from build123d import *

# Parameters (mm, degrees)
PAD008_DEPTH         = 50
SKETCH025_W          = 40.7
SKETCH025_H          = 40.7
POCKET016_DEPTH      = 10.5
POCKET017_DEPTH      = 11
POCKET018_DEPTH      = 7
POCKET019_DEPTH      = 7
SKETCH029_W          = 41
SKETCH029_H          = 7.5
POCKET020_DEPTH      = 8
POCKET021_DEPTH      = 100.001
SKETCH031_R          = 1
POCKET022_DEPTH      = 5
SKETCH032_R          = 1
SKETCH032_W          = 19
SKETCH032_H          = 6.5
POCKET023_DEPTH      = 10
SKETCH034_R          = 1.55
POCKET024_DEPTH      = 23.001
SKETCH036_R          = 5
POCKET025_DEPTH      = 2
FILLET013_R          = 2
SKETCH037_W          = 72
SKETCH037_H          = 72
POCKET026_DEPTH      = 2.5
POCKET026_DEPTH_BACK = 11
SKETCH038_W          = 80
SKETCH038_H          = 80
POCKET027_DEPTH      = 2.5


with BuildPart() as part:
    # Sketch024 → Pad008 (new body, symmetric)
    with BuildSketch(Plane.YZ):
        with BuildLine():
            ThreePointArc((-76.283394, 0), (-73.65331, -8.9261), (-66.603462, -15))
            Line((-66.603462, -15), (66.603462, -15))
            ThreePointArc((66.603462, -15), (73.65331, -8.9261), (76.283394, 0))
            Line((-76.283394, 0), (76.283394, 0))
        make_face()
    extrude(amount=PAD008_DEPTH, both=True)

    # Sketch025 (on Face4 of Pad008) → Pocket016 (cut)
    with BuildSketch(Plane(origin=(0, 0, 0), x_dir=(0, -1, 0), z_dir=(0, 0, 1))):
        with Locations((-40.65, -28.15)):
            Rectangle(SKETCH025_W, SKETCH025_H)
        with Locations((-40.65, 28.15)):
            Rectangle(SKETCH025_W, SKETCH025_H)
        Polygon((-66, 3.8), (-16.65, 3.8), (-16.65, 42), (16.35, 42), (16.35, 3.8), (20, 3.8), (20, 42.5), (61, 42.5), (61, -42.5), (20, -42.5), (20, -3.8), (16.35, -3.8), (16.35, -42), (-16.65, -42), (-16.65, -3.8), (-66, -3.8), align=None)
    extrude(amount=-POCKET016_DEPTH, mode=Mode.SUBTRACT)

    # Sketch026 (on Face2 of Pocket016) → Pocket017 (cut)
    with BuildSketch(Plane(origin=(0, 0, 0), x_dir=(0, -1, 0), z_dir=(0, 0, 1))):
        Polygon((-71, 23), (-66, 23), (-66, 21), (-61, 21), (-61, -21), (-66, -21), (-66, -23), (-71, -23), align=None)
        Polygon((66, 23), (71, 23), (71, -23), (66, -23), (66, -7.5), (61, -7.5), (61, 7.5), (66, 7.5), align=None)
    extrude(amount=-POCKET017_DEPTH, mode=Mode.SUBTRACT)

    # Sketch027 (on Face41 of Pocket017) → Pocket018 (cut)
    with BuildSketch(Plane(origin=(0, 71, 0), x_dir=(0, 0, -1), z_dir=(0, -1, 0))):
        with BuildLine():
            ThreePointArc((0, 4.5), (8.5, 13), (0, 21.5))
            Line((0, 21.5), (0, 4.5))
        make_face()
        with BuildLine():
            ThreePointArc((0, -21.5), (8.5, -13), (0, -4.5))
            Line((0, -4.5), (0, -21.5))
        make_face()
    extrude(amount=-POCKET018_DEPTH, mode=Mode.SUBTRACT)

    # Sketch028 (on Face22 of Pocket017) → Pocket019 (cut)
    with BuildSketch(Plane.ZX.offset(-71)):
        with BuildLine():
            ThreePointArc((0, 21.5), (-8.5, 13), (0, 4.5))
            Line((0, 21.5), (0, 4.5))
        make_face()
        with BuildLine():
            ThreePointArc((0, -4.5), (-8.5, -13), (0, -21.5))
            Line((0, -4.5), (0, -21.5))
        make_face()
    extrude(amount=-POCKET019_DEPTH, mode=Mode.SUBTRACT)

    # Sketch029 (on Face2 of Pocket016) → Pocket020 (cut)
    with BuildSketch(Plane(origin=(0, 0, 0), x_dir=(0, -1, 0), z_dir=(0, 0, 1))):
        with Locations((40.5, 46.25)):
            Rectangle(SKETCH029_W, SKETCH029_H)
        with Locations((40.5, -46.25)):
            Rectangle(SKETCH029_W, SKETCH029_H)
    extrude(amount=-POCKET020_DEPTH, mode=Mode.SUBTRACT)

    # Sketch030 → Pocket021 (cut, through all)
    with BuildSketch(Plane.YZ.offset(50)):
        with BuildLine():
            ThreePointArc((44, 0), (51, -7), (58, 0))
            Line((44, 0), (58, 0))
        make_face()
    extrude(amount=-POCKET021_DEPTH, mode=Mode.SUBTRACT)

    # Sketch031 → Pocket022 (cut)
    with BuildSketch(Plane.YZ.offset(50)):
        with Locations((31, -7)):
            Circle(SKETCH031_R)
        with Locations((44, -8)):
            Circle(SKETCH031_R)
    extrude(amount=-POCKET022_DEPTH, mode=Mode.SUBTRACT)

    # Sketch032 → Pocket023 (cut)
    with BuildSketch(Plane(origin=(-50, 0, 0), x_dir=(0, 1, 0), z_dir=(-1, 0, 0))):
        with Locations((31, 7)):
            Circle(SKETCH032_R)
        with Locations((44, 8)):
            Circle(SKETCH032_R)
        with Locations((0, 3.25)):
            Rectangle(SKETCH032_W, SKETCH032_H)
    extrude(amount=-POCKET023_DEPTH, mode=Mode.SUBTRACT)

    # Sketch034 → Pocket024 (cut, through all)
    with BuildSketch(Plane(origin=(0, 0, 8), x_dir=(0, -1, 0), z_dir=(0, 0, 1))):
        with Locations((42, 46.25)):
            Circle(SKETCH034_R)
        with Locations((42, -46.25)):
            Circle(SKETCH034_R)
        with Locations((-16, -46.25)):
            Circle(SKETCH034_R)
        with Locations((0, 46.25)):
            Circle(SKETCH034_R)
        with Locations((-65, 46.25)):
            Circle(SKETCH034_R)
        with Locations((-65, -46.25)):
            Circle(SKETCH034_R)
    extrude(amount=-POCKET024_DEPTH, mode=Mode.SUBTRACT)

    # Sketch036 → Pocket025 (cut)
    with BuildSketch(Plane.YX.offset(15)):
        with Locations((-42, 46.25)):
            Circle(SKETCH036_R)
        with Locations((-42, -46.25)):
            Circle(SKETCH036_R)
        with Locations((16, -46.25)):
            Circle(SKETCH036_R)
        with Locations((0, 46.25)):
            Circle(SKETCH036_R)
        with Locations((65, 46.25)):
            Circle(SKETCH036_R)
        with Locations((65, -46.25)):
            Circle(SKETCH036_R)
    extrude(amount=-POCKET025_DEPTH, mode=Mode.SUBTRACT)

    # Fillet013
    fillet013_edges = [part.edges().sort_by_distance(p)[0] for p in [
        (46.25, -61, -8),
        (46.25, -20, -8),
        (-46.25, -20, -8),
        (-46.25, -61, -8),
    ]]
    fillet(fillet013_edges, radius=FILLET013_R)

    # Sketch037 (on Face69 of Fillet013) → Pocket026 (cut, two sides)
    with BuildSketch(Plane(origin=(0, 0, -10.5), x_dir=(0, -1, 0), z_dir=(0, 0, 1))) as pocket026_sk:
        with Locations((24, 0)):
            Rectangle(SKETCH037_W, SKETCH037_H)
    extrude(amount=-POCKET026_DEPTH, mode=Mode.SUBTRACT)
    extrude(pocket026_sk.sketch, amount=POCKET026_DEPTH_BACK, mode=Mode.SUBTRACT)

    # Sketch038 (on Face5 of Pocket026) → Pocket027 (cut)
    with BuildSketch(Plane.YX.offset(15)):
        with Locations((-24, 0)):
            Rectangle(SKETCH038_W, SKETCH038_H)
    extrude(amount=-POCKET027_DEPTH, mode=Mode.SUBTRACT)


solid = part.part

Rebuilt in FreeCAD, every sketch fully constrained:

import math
import FreeCAD as App
import Part
import Sketcher
from FreeCAD import Vector


def edges_at(feature, points):
    """Names of the edges that pass closest to the given points."""
    edges = feature.Shape.Edges
    near = lambda p: min(range(len(edges)), key=lambda i: edges[i].distToShape(Part.Vertex(*p))[0])
    return sorted({f"Edge{near(p) + 1}" for p in points})

doc = App.newDocument("Part")
body = doc.addObject("PartDesign::Body", "Body")

# Sketch on YZ plane
sketch1 = body.newObject("Sketcher::SketchObject", "Sketch")
sketch1.AttachmentSupport = (doc.getObject("YZ_Plane"), [""])
sketch1.MapMode = "FlatFace"
sketch1.addGeometry(Part.ArcOfCircle(Part.Circle(Vector(-60, 0, 0), Vector(0, 0, 1), 16), math.radians(-180), math.radians(-114)), False)
sketch1.addGeometry(Part.LineSegment(Vector(-67, -15, 0), Vector(67, -15, 0)), False)
sketch1.addGeometry(Part.ArcOfCircle(Part.Circle(Vector(60, 0, 0), Vector(0, 0, 1), 16), math.radians(-66), math.radians(0)), False)
sketch1.addGeometry(Part.LineSegment(Vector(76, 0, 0), Vector(-76, 0, 0)), False)
sketch1.addConstraint(Sketcher.Constraint("Coincident", 0, 2, 1, 1))
sketch1.addConstraint(Sketcher.Constraint("Coincident", 1, 2, 2, 1))
sketch1.addConstraint(Sketcher.Constraint("Coincident", 2, 2, 3, 1))
sketch1.addConstraint(Sketcher.Constraint("Coincident", 3, 2, 0, 1))
sketch1.addConstraint(Sketcher.Constraint("Horizontal", 1))
sketch1.addConstraint(Sketcher.Constraint("Horizontal", 3))
sketch1.addConstraint(Sketcher.Constraint("Equal", 0, 2))
sketch1.addConstraint(Sketcher.Constraint("Symmetric", 0, 3, 2, 3, -1, 1))
sketch1.addConstraint(Sketcher.Constraint("PointOnObject", 0, 3, -1))
sketch1.addConstraint(Sketcher.Constraint("PointOnObject", 2, 2, -1))
sketch1.addConstraint(Sketcher.Constraint("DistanceY", 0, 2, -1, 1, 15.0))
sketch1.addConstraint(Sketcher.Constraint("Radius", 0, 16.46195))
sketch1.addConstraint(Sketcher.Constraint("DistanceX", 3, 2, 3, 1, 152.566788))
pad1 = body.newObject("PartDesign::Pad", "Pad")
pad1.Profile = sketch1
pad1.Length = 100
pad1.Midplane = True

# Sketch on XY plane
sketch2 = body.newObject("Sketcher::SketchObject", "Sketch001")
sketch2.AttachmentSupport = (doc.getObject("XY_Plane"), [""])
sketch2.MapMode = "FlatFace"
sketch2.addGeometry(Part.LineSegment(Vector(-7.8, 61, 0), Vector(-48.5, 61, 0)), False)
sketch2.addGeometry(Part.LineSegment(Vector(-48.5, 61, 0), Vector(-48.5, 20.3, 0)), False)
sketch2.addGeometry(Part.LineSegment(Vector(-48.5, 20.3, 0), Vector(-7.8, 20.3, 0)), False)
sketch2.addGeometry(Part.LineSegment(Vector(-7.8, 20.3, 0), Vector(-7.8, 61, 0)), False)
sketch2.addGeometry(Part.LineSegment(Vector(48.5, 61, 0), Vector(7.8, 61, 0)), False)
sketch2.addGeometry(Part.LineSegment(Vector(7.8, 61, 0), Vector(7.8, 20.3, 0)), False)
sketch2.addGeometry(Part.LineSegment(Vector(7.8, 20.3, 0), Vector(48.5, 20.3, 0)), False)
sketch2.addGeometry(Part.LineSegment(Vector(48.5, 20.3, 0), Vector(48.5, 61, 0)), False)
sketch2.addGeometry(Part.LineSegment(Vector(3.8, 16.6, 0), Vector(3.8, 66, 0)), False)
sketch2.addGeometry(Part.LineSegment(Vector(3.8, 66, 0), Vector(-3.8, 66, 0)), False)
sketch2.addGeometry(Part.LineSegment(Vector(-3.8, 66, 0), Vector(-3.8, 16.6, 0)), False)
sketch2.addGeometry(Part.LineSegment(Vector(-3.8, 16.6, 0), Vector(-42, 16.6, 0)), False)
sketch2.addGeometry(Part.LineSegment(Vector(-42, 16.6, 0), Vector(-42, -16.4, 0)), False)
sketch2.addGeometry(Part.LineSegment(Vector(-42, -16.4, 0), Vector(-3.8, -16.4, 0)), False)
sketch2.addGeometry(Part.LineSegment(Vector(-3.8, -16.4, 0), Vector(-3.8, -20, 0)), False)
sketch2.addGeometry(Part.LineSegment(Vector(-3.8, -20, 0), Vector(-42.5, -20, 0)), False)
sketch2.addGeometry(Part.LineSegment(Vector(-42.5, -20, 0), Vector(-42.5, -61, 0)), False)
sketch2.addGeometry(Part.LineSegment(Vector(-42.5, -61, 0), Vector(42.5, -61, 0)), False)
sketch2.addGeometry(Part.LineSegment(Vector(42.5, -61, 0), Vector(42.5, -20, 0)), False)
sketch2.addGeometry(Part.LineSegment(Vector(42.5, -20, 0), Vector(3.8, -20, 0)), False)
sketch2.addGeometry(Part.LineSegment(Vector(3.8, -20, 0), Vector(3.8, -16.4, 0)), False)
sketch2.addGeometry(Part.LineSegment(Vector(3.8, -16.4, 0), Vector(42, -16.4, 0)), False)
sketch2.addGeometry(Part.LineSegment(Vector(42, -16.4, 0), Vector(42, 16.6, 0)), False)
sketch2.addGeometry(Part.LineSegment(Vector(42, 16.6, 0), Vector(3.8, 16.6, 0)), False)
sketch2.addConstraint(Sketcher.Constraint("Coincident", 0, 2, 1, 1))
sketch2.addConstraint(Sketcher.Constraint("Coincident", 1, 2, 2, 1))
sketch2.addConstraint(Sketcher.Constraint("Coincident", 2, 2, 3, 1))
sketch2.addConstraint(Sketcher.Constraint("Coincident", 3, 2, 0, 1))
sketch2.addConstraint(Sketcher.Constraint("Coincident", 4, 2, 5, 1))
sketch2.addConstraint(Sketcher.Constraint("Coincident", 5, 2, 6, 1))
sketch2.addConstraint(Sketcher.Constraint("Coincident", 6, 2, 7, 1))
sketch2.addConstraint(Sketcher.Constraint("Coincident", 7, 2, 4, 1))
sketch2.addConstraint(Sketcher.Constraint("Coincident", 8, 2, 9, 1))
sketch2.addConstraint(Sketcher.Constraint("Coincident", 9, 2, 10, 1))
sketch2.addConstraint(Sketcher.Constraint("Coincident", 10, 2, 11, 1))
sketch2.addConstraint(Sketcher.Constraint("Coincident", 11, 2, 12, 1))
sketch2.addConstraint(Sketcher.Constraint("Coincident", 12, 2, 13, 1))
sketch2.addConstraint(Sketcher.Constraint("Coincident", 13, 2, 14, 1))
sketch2.addConstraint(Sketcher.Constraint("Coincident", 14, 2, 15, 1))
sketch2.addConstraint(Sketcher.Constraint("Coincident", 15, 2, 16, 1))
sketch2.addConstraint(Sketcher.Constraint("Coincident", 16, 2, 17, 1))
sketch2.addConstraint(Sketcher.Constraint("Coincident", 17, 2, 18, 1))
sketch2.addConstraint(Sketcher.Constraint("Coincident", 18, 2, 19, 1))
sketch2.addConstraint(Sketcher.Constraint("Coincident", 19, 2, 20, 1))
sketch2.addConstraint(Sketcher.Constraint("Coincident", 20, 2, 21, 1))
sketch2.addConstraint(Sketcher.Constraint("Coincident", 21, 2, 22, 1))
sketch2.addConstraint(Sketcher.Constraint("Coincident", 22, 2, 23, 1))
sketch2.addConstraint(Sketcher.Constraint("Coincident", 23, 2, 8, 1))
sketch2.addConstraint(Sketcher.Constraint("Horizontal", 0))
sketch2.addConstraint(Sketcher.Constraint("Vertical", 1))
sketch2.addConstraint(Sketcher.Constraint("Horizontal", 2))
sketch2.addConstraint(Sketcher.Constraint("Vertical", 3))
sketch2.addConstraint(Sketcher.Constraint("Horizontal", 4))
sketch2.addConstraint(Sketcher.Constraint("Vertical", 5))
sketch2.addConstraint(Sketcher.Constraint("Horizontal", 6))
sketch2.addConstraint(Sketcher.Constraint("Vertical", 7))
sketch2.addConstraint(Sketcher.Constraint("Vertical", 8))
sketch2.addConstraint(Sketcher.Constraint("Horizontal", 9))
sketch2.addConstraint(Sketcher.Constraint("Vertical", 10))
sketch2.addConstraint(Sketcher.Constraint("Horizontal", 11))
sketch2.addConstraint(Sketcher.Constraint("Vertical", 12))
sketch2.addConstraint(Sketcher.Constraint("Horizontal", 13))
sketch2.addConstraint(Sketcher.Constraint("Vertical", 14))
sketch2.addConstraint(Sketcher.Constraint("Horizontal", 15))
sketch2.addConstraint(Sketcher.Constraint("Vertical", 16))
sketch2.addConstraint(Sketcher.Constraint("Horizontal", 17))
sketch2.addConstraint(Sketcher.Constraint("Vertical", 18))
sketch2.addConstraint(Sketcher.Constraint("Horizontal", 19))
sketch2.addConstraint(Sketcher.Constraint("Vertical", 20))
sketch2.addConstraint(Sketcher.Constraint("Horizontal", 21))
sketch2.addConstraint(Sketcher.Constraint("Vertical", 22))
sketch2.addConstraint(Sketcher.Constraint("Horizontal", 23))
sketch2.addConstraint(Sketcher.Constraint("Symmetric", 3, 2, 4, 2, -2))
sketch2.addConstraint(Sketcher.Constraint("Symmetric", 1, 2, 6, 2, -2))
sketch2.addConstraint(Sketcher.Constraint("Symmetric", 15, 2, 18, 2, -2))
sketch2.addConstraint(Sketcher.Constraint("Symmetric", 13, 2, 20, 2, -2))
sketch2.addConstraint(Sketcher.Constraint("Symmetric", 11, 2, 22, 2, -2))
sketch2.addConstraint(Sketcher.Constraint("Vertical", 10, 2, 13, 2))
sketch2.addConstraint(Sketcher.Constraint("Vertical", 8, 2, 19, 2))
sketch2.addConstraint(Sketcher.Constraint("Equal", 6, 1))
sketch2.addConstraint(Sketcher.Constraint("DistanceX", 17, 1, 17, 2, 85.0))
sketch2.addConstraint(Sketcher.Constraint("DistanceY", 12, 2, 12, 1, 33.0))
sketch2.addConstraint(Sketcher.Constraint("DistanceY", 16, 2, 16, 1, 41.0))
sketch2.addConstraint(Sketcher.Constraint("DistanceX", 0, 2, 0, 1, 40.7))
sketch2.addConstraint(Sketcher.Constraint("DistanceX", 9, 2, 9, 1, 7.6))
sketch2.addConstraint(Sketcher.Constraint("DistanceX", 11, 2, 11, 1, 38.2))
sketch2.addConstraint(Sketcher.Constraint("DistanceY", -1, 1, 0, 2, 61.0))
sketch2.addConstraint(Sketcher.Constraint("DistanceY", -1, 1, 8, 2, 66.0))
sketch2.addConstraint(Sketcher.Constraint("DistanceY", 14, 2, -1, 1, 20.0))
sketch2.addConstraint(Sketcher.Constraint("DistanceX", 1, 2, 6, 2, 97.0))
sketch2.addConstraint(Sketcher.Constraint("DistanceY", 8, 1, 8, 2, 49.35))
pocket1 = body.newObject("PartDesign::Pocket", "Pocket")
pocket1.Profile = sketch2
pocket1.Length = 10.5

# Sketch on XY plane
sketch3 = body.newObject("Sketcher::SketchObject", "Sketch002")
sketch3.AttachmentSupport = (doc.getObject("XY_Plane"), [""])
sketch3.MapMode = "FlatFace"
sketch3.addGeometry(Part.LineSegment(Vector(23, 66, 0), Vector(23, 71, 0)), False)
sketch3.addGeometry(Part.LineSegment(Vector(23, 71, 0), Vector(-23, 71, 0)), False)
sketch3.addGeometry(Part.LineSegment(Vector(-23, 71, 0), Vector(-23, 66, 0)), False)
sketch3.addGeometry(Part.LineSegment(Vector(-23, 66, 0), Vector(-21, 66, 0)), False)
sketch3.addGeometry(Part.LineSegment(Vector(-21, 66, 0), Vector(-21, 61, 0)), False)
sketch3.addGeometry(Part.LineSegment(Vector(-21, 61, 0), Vector(21, 61, 0)), False)
sketch3.addGeometry(Part.LineSegment(Vector(21, 61, 0), Vector(21, 66, 0)), False)
sketch3.addGeometry(Part.LineSegment(Vector(21, 66, 0), Vector(23, 66, 0)), False)
sketch3.addGeometry(Part.LineSegment(Vector(23, -71, 0), Vector(23, -66, 0)), False)
sketch3.addGeometry(Part.LineSegment(Vector(23, -66, 0), Vector(7.5, -66, 0)), False)
sketch3.addGeometry(Part.LineSegment(Vector(7.5, -66, 0), Vector(7.5, -61, 0)), False)
sketch3.addGeometry(Part.LineSegment(Vector(7.5, -61, 0), Vector(-7.5, -61, 0)), False)
sketch3.addGeometry(Part.LineSegment(Vector(-7.5, -61, 0), Vector(-7.5, -66, 0)), False)
sketch3.addGeometry(Part.LineSegment(Vector(-7.5, -66, 0), Vector(-23, -66, 0)), False)
sketch3.addGeometry(Part.LineSegment(Vector(-23, -66, 0), Vector(-23, -71, 0)), False)
sketch3.addGeometry(Part.LineSegment(Vector(-23, -71, 0), Vector(23, -71, 0)), False)
sketch3.addConstraint(Sketcher.Constraint("Coincident", 0, 2, 1, 1))
sketch3.addConstraint(Sketcher.Constraint("Coincident", 1, 2, 2, 1))
sketch3.addConstraint(Sketcher.Constraint("Coincident", 2, 2, 3, 1))
sketch3.addConstraint(Sketcher.Constraint("Coincident", 3, 2, 4, 1))
sketch3.addConstraint(Sketcher.Constraint("Coincident", 4, 2, 5, 1))
sketch3.addConstraint(Sketcher.Constraint("Coincident", 5, 2, 6, 1))
sketch3.addConstraint(Sketcher.Constraint("Coincident", 6, 2, 7, 1))
sketch3.addConstraint(Sketcher.Constraint("Coincident", 7, 2, 0, 1))
sketch3.addConstraint(Sketcher.Constraint("Coincident", 8, 2, 9, 1))
sketch3.addConstraint(Sketcher.Constraint("Coincident", 9, 2, 10, 1))
sketch3.addConstraint(Sketcher.Constraint("Coincident", 10, 2, 11, 1))
sketch3.addConstraint(Sketcher.Constraint("Coincident", 11, 2, 12, 1))
sketch3.addConstraint(Sketcher.Constraint("Coincident", 12, 2, 13, 1))
sketch3.addConstraint(Sketcher.Constraint("Coincident", 13, 2, 14, 1))
sketch3.addConstraint(Sketcher.Constraint("Coincident", 14, 2, 15, 1))
sketch3.addConstraint(Sketcher.Constraint("Coincident", 15, 2, 8, 1))
sketch3.addConstraint(Sketcher.Constraint("Vertical", 0))
sketch3.addConstraint(Sketcher.Constraint("Horizontal", 1))
sketch3.addConstraint(Sketcher.Constraint("Vertical", 2))
sketch3.addConstraint(Sketcher.Constraint("Horizontal", 3))
sketch3.addConstraint(Sketcher.Constraint("Vertical", 4))
sketch3.addConstraint(Sketcher.Constraint("Horizontal", 5))
sketch3.addConstraint(Sketcher.Constraint("Vertical", 6))
sketch3.addConstraint(Sketcher.Constraint("Horizontal", 7))
sketch3.addConstraint(Sketcher.Constraint("Vertical", 8))
sketch3.addConstraint(Sketcher.Constraint("Horizontal", 9))
sketch3.addConstraint(Sketcher.Constraint("Vertical", 10))
sketch3.addConstraint(Sketcher.Constraint("Horizontal", 11))
sketch3.addConstraint(Sketcher.Constraint("Vertical", 12))
sketch3.addConstraint(Sketcher.Constraint("Horizontal", 13))
sketch3.addConstraint(Sketcher.Constraint("Vertical", 14))
sketch3.addConstraint(Sketcher.Constraint("Horizontal", 15))
sketch3.addConstraint(Sketcher.Constraint("Symmetric", 2, 2, 8, 2, -1, 1))
sketch3.addConstraint(Sketcher.Constraint("Symmetric", 7, 2, 13, 2, -1, 1))
sketch3.addConstraint(Sketcher.Constraint("Symmetric", 3, 2, 6, 2, -2))
sketch3.addConstraint(Sketcher.Constraint("Symmetric", 1, 2, 14, 2, -1))
sketch3.addConstraint(Sketcher.Constraint("Equal", 9, 13))
sketch3.addConstraint(Sketcher.Constraint("Equal", 2, 4))
sketch3.addConstraint(Sketcher.Constraint("Equal", 8, 10))
sketch3.addConstraint(Sketcher.Constraint("DistanceX", 1, 2, 1, 1, 46.0))
sketch3.addConstraint(Sketcher.Constraint("DistanceX", 3, 1, 3, 2, 2.0))
sketch3.addConstraint(Sketcher.Constraint("DistanceX", 11, 2, 11, 1, 15.0))
sketch3.addConstraint(Sketcher.Constraint("DistanceY", 0, 1, 0, 2, 5.0))
sketch3.addConstraint(Sketcher.Constraint("DistanceY", -1, 1, 0, 2, 71.0))
pocket2 = body.newObject("PartDesign::Pocket", "Pocket001")
pocket2.Profile = sketch3
pocket2.Length = 11

# Sketch on XZ plane
sketch4 = body.newObject("Sketcher::SketchObject", "Sketch003")
sketch4.AttachmentSupport = (doc.getObject("XZ_Plane"), [""])
sketch4.MapMode = "FlatFace"
sketch4.AttachmentOffset = App.Placement(Vector(0, 0, -71), App.Rotation())
sketch4.addGeometry(Part.ArcOfCircle(Part.Circle(Vector(13, 0, 0), Vector(0, 0, 1), 8), math.radians(180), math.radians(360)), False)
sketch4.addGeometry(Part.LineSegment(Vector(22, 0, 0), Vector(4, 0, 0)), False)
sketch4.addGeometry(Part.ArcOfCircle(Part.Circle(Vector(-13, 0, 0), Vector(0, 0, 1), 8), math.radians(180), math.radians(360)), False)
sketch4.addGeometry(Part.LineSegment(Vector(-4, 0, 0), Vector(-22, 0, 0)), False)
sketch4.addConstraint(Sketcher.Constraint("Coincident", 0, 1, 1, 2))
sketch4.addConstraint(Sketcher.Constraint("Coincident", 1, 1, 0, 2))
sketch4.addConstraint(Sketcher.Constraint("Coincident", 2, 1, 3, 2))
sketch4.addConstraint(Sketcher.Constraint("Coincident", 3, 1, 2, 2))
sketch4.addConstraint(Sketcher.Constraint("Horizontal", 1))
sketch4.addConstraint(Sketcher.Constraint("Horizontal", 3))
sketch4.addConstraint(Sketcher.Constraint("Equal", 0, 2))
sketch4.addConstraint(Sketcher.Constraint("Symmetric", 0, 3, 2, 3, -1, 1))
sketch4.addConstraint(Sketcher.Constraint("PointOnObject", 0, 3, -1))
sketch4.addConstraint(Sketcher.Constraint("PointOnObject", 0, 1, -1))
sketch4.addConstraint(Sketcher.Constraint("PointOnObject", 2, 1, -1))
sketch4.addConstraint(Sketcher.Constraint("Radius", 0, 8.5))
sketch4.addConstraint(Sketcher.Constraint("DistanceX", -1, 1, 0, 3, 13.0))
pocket3 = body.newObject("PartDesign::Pocket", "Pocket002")
pocket3.Profile = sketch4
pocket3.Length = 7

# Sketch on XZ plane
sketch5 = body.newObject("Sketcher::SketchObject", "Sketch004")
sketch5.AttachmentSupport = (doc.getObject("XZ_Plane"), [""])
sketch5.MapMode = "FlatFace"
sketch5.AttachmentOffset = App.Placement(Vector(0, 0, 71), App.Rotation())
sketch5.addGeometry(Part.ArcOfCircle(Part.Circle(Vector(13, 0, 0), Vector(0, 0, 1), 8), math.radians(180), math.radians(360)), False)
sketch5.addGeometry(Part.LineSegment(Vector(4, 0, 0), Vector(22, 0, 0)), False)
sketch5.addGeometry(Part.ArcOfCircle(Part.Circle(Vector(-13, 0, 0), Vector(0, 0, 1), 8), math.radians(180), math.radians(360)), False)
sketch5.addGeometry(Part.LineSegment(Vector(-22, 0, 0), Vector(-4, 0, 0)), False)
sketch5.addConstraint(Sketcher.Constraint("Coincident", 0, 1, 1, 1))
sketch5.addConstraint(Sketcher.Constraint("Coincident", 1, 2, 0, 2))
sketch5.addConstraint(Sketcher.Constraint("Coincident", 2, 1, 3, 1))
sketch5.addConstraint(Sketcher.Constraint("Coincident", 3, 2, 2, 2))
sketch5.addConstraint(Sketcher.Constraint("Horizontal", 1))
sketch5.addConstraint(Sketcher.Constraint("Horizontal", 3))
sketch5.addConstraint(Sketcher.Constraint("Equal", 0, 2))
sketch5.addConstraint(Sketcher.Constraint("Symmetric", 0, 3, 2, 3, -1, 1))
sketch5.addConstraint(Sketcher.Constraint("PointOnObject", 0, 3, -1))
sketch5.addConstraint(Sketcher.Constraint("PointOnObject", 0, 1, -1))
sketch5.addConstraint(Sketcher.Constraint("PointOnObject", 2, 1, -1))
sketch5.addConstraint(Sketcher.Constraint("Radius", 0, 8.5))
sketch5.addConstraint(Sketcher.Constraint("DistanceX", -1, 1, 0, 3, 13.0))
pocket4 = body.newObject("PartDesign::Pocket", "Pocket003")
pocket4.Profile = sketch5
pocket4.Length = 7
pocket4.Reversed = True

# Sketch on XY plane
sketch6 = body.newObject("Sketcher::SketchObject", "Sketch005")
sketch6.AttachmentSupport = (doc.getObject("XY_Plane"), [""])
sketch6.MapMode = "FlatFace"
sketch6.addGeometry(Part.LineSegment(Vector(50, -20, 0), Vector(42, -20, 0)), False)
sketch6.addGeometry(Part.LineSegment(Vector(42, -20, 0), Vector(42, -61, 0)), False)
sketch6.addGeometry(Part.LineSegment(Vector(42, -61, 0), Vector(50, -61, 0)), False)
sketch6.addGeometry(Part.LineSegment(Vector(50, -61, 0), Vector(50, -20, 0)), False)
sketch6.addGeometry(Part.LineSegment(Vector(-42, -20, 0), Vector(-50, -20, 0)), False)
sketch6.addGeometry(Part.LineSegment(Vector(-50, -20, 0), Vector(-50, -61, 0)), False)
sketch6.addGeometry(Part.LineSegment(Vector(-50, -61, 0), Vector(-42, -61, 0)), False)
sketch6.addGeometry(Part.LineSegment(Vector(-42, -61, 0), Vector(-42, -20, 0)), False)
sketch6.addConstraint(Sketcher.Constraint("Coincident", 0, 2, 1, 1))
sketch6.addConstraint(Sketcher.Constraint("Coincident", 1, 2, 2, 1))
sketch6.addConstraint(Sketcher.Constraint("Coincident", 2, 2, 3, 1))
sketch6.addConstraint(Sketcher.Constraint("Coincident", 3, 2, 0, 1))
sketch6.addConstraint(Sketcher.Constraint("Coincident", 4, 2, 5, 1))
sketch6.addConstraint(Sketcher.Constraint("Coincident", 5, 2, 6, 1))
sketch6.addConstraint(Sketcher.Constraint("Coincident", 6, 2, 7, 1))
sketch6.addConstraint(Sketcher.Constraint("Coincident", 7, 2, 4, 1))
sketch6.addConstraint(Sketcher.Constraint("Horizontal", 0))
sketch6.addConstraint(Sketcher.Constraint("Vertical", 1))
sketch6.addConstraint(Sketcher.Constraint("Horizontal", 2))
sketch6.addConstraint(Sketcher.Constraint("Vertical", 3))
sketch6.addConstraint(Sketcher.Constraint("Horizontal", 4))
sketch6.addConstraint(Sketcher.Constraint("Vertical", 5))
sketch6.addConstraint(Sketcher.Constraint("Horizontal", 6))
sketch6.addConstraint(Sketcher.Constraint("Vertical", 7))
sketch6.addConstraint(Sketcher.Constraint("Symmetric", 3, 2, 4, 2, -2))
sketch6.addConstraint(Sketcher.Constraint("Symmetric", 1, 2, 6, 2, -2))
sketch6.addConstraint(Sketcher.Constraint("DistanceY", 1, 2, 1, 1, 41.0))
sketch6.addConstraint(Sketcher.Constraint("DistanceX", 0, 2, 0, 1, 7.5))
sketch6.addConstraint(Sketcher.Constraint("DistanceY", 0, 2, -1, 1, 20.0))
sketch6.addConstraint(Sketcher.Constraint("DistanceX", -1, 1, 2, 2, 50.0))
pocket5 = body.newObject("PartDesign::Pocket", "Pocket004")
pocket5.Profile = sketch6
pocket5.Length = 8

# Sketch on YZ plane
sketch7 = body.newObject("Sketcher::SketchObject", "Sketch006")
sketch7.AttachmentSupport = (doc.getObject("YZ_Plane"), [""])
sketch7.MapMode = "FlatFace"
sketch7.AttachmentOffset = App.Placement(Vector(0, 0, 50), App.Rotation())
sketch7.addGeometry(Part.ArcOfCircle(Part.Circle(Vector(51, 0, 0), Vector(0, 0, 1), 7), math.radians(180), math.radians(360)), False)
sketch7.addGeometry(Part.LineSegment(Vector(58, 0, 0), Vector(44, 0, 0)), False)
sketch7.addConstraint(Sketcher.Constraint("Coincident", 0, 1, 1, 2))
sketch7.addConstraint(Sketcher.Constraint("Coincident", 1, 1, 0, 2))
sketch7.addConstraint(Sketcher.Constraint("Horizontal", 1))
sketch7.addConstraint(Sketcher.Constraint("PointOnObject", 0, 3, -1))
sketch7.addConstraint(Sketcher.Constraint("PointOnObject", 0, 1, -1))
sketch7.addConstraint(Sketcher.Constraint("Radius", 0, 7.0))
sketch7.addConstraint(Sketcher.Constraint("DistanceX", -1, 1, 0, 3, 51.0))
pocket6 = body.newObject("PartDesign::Pocket", "Pocket005")
pocket6.Profile = sketch7
pocket6.Type = "ThroughAll"

# Sketch on YZ plane
sketch8 = body.newObject("Sketcher::SketchObject", "Sketch007")
sketch8.AttachmentSupport = (doc.getObject("YZ_Plane"), [""])
sketch8.MapMode = "FlatFace"
sketch8.AttachmentOffset = App.Placement(Vector(0, 0, 50), App.Rotation())
sketch8.addGeometry(Part.Circle(Vector(31, -7, 0), Vector(0, 0, 1), 1), False)
sketch8.addGeometry(Part.Circle(Vector(44, -8, 0), Vector(0, 0, 1), 1), False)
sketch8.addConstraint(Sketcher.Constraint("Equal", 0, 1))
sketch8.addConstraint(Sketcher.Constraint("Diameter", 0, 2.0))
sketch8.addConstraint(Sketcher.Constraint("DistanceX", -1, 1, 0, 3, 31.0))
sketch8.addConstraint(Sketcher.Constraint("DistanceY", 0, 3, -1, 1, 7.0))
sketch8.addConstraint(Sketcher.Constraint("DistanceX", -1, 1, 1, 3, 44.0))
sketch8.addConstraint(Sketcher.Constraint("DistanceY", 1, 3, -1, 1, 8.0))
pocket7 = body.newObject("PartDesign::Pocket", "Pocket006")
pocket7.Profile = sketch8
pocket7.Length = 5

# Sketch on YZ plane
sketch9 = body.newObject("Sketcher::SketchObject", "Sketch008")
sketch9.AttachmentSupport = (doc.getObject("YZ_Plane"), [""])
sketch9.MapMode = "FlatFace"
sketch9.AttachmentOffset = App.Placement(Vector(0, 0, -50), App.Rotation())
sketch9.addGeometry(Part.Circle(Vector(31, -7, 0), Vector(0, 0, 1), 1), False)
sketch9.addGeometry(Part.Circle(Vector(44, -8, 0), Vector(0, 0, 1), 1), False)
sketch9.addGeometry(Part.LineSegment(Vector(-9.5, -6.5, 0), Vector(-9.5, 0, 0)), False)
sketch9.addGeometry(Part.LineSegment(Vector(-9.5, 0, 0), Vector(9.5, 0, 0)), False)
sketch9.addGeometry(Part.LineSegment(Vector(9.5, 0, 0), Vector(9.5, -6.5, 0)), False)
sketch9.addGeometry(Part.LineSegment(Vector(9.5, -6.5, 0), Vector(-9.5, -6.5, 0)), False)
sketch9.addConstraint(Sketcher.Constraint("Coincident", 2, 2, 3, 1))
sketch9.addConstraint(Sketcher.Constraint("Coincident", 3, 2, 4, 1))
sketch9.addConstraint(Sketcher.Constraint("Coincident", 4, 2, 5, 1))
sketch9.addConstraint(Sketcher.Constraint("Coincident", 5, 2, 2, 1))
sketch9.addConstraint(Sketcher.Constraint("Vertical", 2))
sketch9.addConstraint(Sketcher.Constraint("Horizontal", 3))
sketch9.addConstraint(Sketcher.Constraint("Vertical", 4))
sketch9.addConstraint(Sketcher.Constraint("Horizontal", 5))
sketch9.addConstraint(Sketcher.Constraint("Equal", 0, 1))
sketch9.addConstraint(Sketcher.Constraint("Symmetric", 2, 2, 3, 2, -1, 1))
sketch9.addConstraint(Sketcher.Constraint("Diameter", 0, 2.0))
sketch9.addConstraint(Sketcher.Constraint("DistanceX", 3, 1, 3, 2, 19.0))
sketch9.addConstraint(Sketcher.Constraint("DistanceY", 2, 1, 2, 2, 6.5))
sketch9.addConstraint(Sketcher.Constraint("DistanceX", -1, 1, 0, 3, 31.0))
sketch9.addConstraint(Sketcher.Constraint("DistanceY", 0, 3, -1, 1, 7.0))
sketch9.addConstraint(Sketcher.Constraint("DistanceX", -1, 1, 1, 3, 44.0))
sketch9.addConstraint(Sketcher.Constraint("DistanceY", 1, 3, -1, 1, 8.0))
pocket8 = body.newObject("PartDesign::Pocket", "Pocket007")
pocket8.Profile = sketch9
pocket8.Length = 10
pocket8.Reversed = True

# Sketch on XY plane
sketch10 = body.newObject("Sketcher::SketchObject", "Sketch009")
sketch10.AttachmentSupport = (doc.getObject("XY_Plane"), [""])
sketch10.MapMode = "FlatFace"
sketch10.AttachmentOffset = App.Placement(Vector(0, 0, 8), App.Rotation())
sketch10.addGeometry(Part.Circle(Vector(46.2, -42, 0), Vector(0, 0, 1), 1.6), False)
sketch10.addGeometry(Part.Circle(Vector(-46.2, -42, 0), Vector(0, 0, 1), 1.6), False)
sketch10.addGeometry(Part.Circle(Vector(-46.2, 16, 0), Vector(0, 0, 1), 1.6), False)
sketch10.addGeometry(Part.Circle(Vector(46.2, 0, 0), Vector(0, 0, 1), 1.6), False)
sketch10.addGeometry(Part.Circle(Vector(46.2, 65, 0), Vector(0, 0, 1), 1.6), False)
sketch10.addGeometry(Part.Circle(Vector(-46.2, 65, 0), Vector(0, 0, 1), 1.6), False)
sketch10.addConstraint(Sketcher.Constraint("Equal", 0, 1))
sketch10.addConstraint(Sketcher.Constraint("Equal", 1, 2))
sketch10.addConstraint(Sketcher.Constraint("Equal", 2, 3))
sketch10.addConstraint(Sketcher.Constraint("Equal", 3, 4))
sketch10.addConstraint(Sketcher.Constraint("Equal", 4, 5))
sketch10.addConstraint(Sketcher.Constraint("Symmetric", 0, 3, 1, 3, -2))
sketch10.addConstraint(Sketcher.Constraint("Symmetric", 4, 3, 5, 3, -2))
sketch10.addConstraint(Sketcher.Constraint("PointOnObject", 3, 3, -1))
sketch10.addConstraint(Sketcher.Constraint("Vertical", 1, 3, 2, 3))
sketch10.addConstraint(Sketcher.Constraint("Vertical", 0, 3, 3, 3))
sketch10.addConstraint(Sketcher.Constraint("Vertical", 3, 3, 4, 3))
sketch10.addConstraint(Sketcher.Constraint("Diameter", 0, 3.1))
sketch10.addConstraint(Sketcher.Constraint("DistanceY", 0, 3, -1, 1, 42.0))
sketch10.addConstraint(Sketcher.Constraint("DistanceY", -1, 1, 2, 3, 16.0))
sketch10.addConstraint(Sketcher.Constraint("DistanceY", -1, 1, 4, 3, 65.0))
sketch10.addConstraint(Sketcher.Constraint("DistanceX", 1, 3, 0, 3, 92.5))
pocket9 = body.newObject("PartDesign::Pocket", "Pocket008")
pocket9.Profile = sketch10
pocket9.Type = "ThroughAll"

# Sketch on XY plane
sketch11 = body.newObject("Sketcher::SketchObject", "Sketch010")
sketch11.AttachmentSupport = (doc.getObject("XY_Plane"), [""])
sketch11.MapMode = "FlatFace"
sketch11.AttachmentOffset = App.Placement(Vector(0, 0, -15), App.Rotation())
sketch11.addGeometry(Part.Circle(Vector(46, -42, 0), Vector(0, 0, 1), 5), False)
sketch11.addGeometry(Part.Circle(Vector(-46, -42, 0), Vector(0, 0, 1), 5), False)
sketch11.addGeometry(Part.Circle(Vector(-46, 16, 0), Vector(0, 0, 1), 5), False)
sketch11.addGeometry(Part.Circle(Vector(46, 0, 0), Vector(0, 0, 1), 5), False)
sketch11.addGeometry(Part.Circle(Vector(46, 65, 0), Vector(0, 0, 1), 5), False)
sketch11.addGeometry(Part.Circle(Vector(-46, 65, 0), Vector(0, 0, 1), 5), False)
sketch11.addConstraint(Sketcher.Constraint("Equal", 0, 1))
sketch11.addConstraint(Sketcher.Constraint("Equal", 1, 2))
sketch11.addConstraint(Sketcher.Constraint("Equal", 2, 3))
sketch11.addConstraint(Sketcher.Constraint("Equal", 3, 4))
sketch11.addConstraint(Sketcher.Constraint("Equal", 4, 5))
sketch11.addConstraint(Sketcher.Constraint("Symmetric", 0, 3, 1, 3, -2))
sketch11.addConstraint(Sketcher.Constraint("Symmetric", 4, 3, 5, 3, -2))
sketch11.addConstraint(Sketcher.Constraint("PointOnObject", 3, 3, -1))
sketch11.addConstraint(Sketcher.Constraint("Vertical", 1, 3, 2, 3))
sketch11.addConstraint(Sketcher.Constraint("Vertical", 0, 3, 3, 3))
sketch11.addConstraint(Sketcher.Constraint("Vertical", 3, 3, 4, 3))
sketch11.addConstraint(Sketcher.Constraint("Diameter", 0, 10.0))
sketch11.addConstraint(Sketcher.Constraint("DistanceY", 0, 3, -1, 1, 42.0))
sketch11.addConstraint(Sketcher.Constraint("DistanceY", -1, 1, 2, 3, 16.0))
sketch11.addConstraint(Sketcher.Constraint("DistanceY", -1, 1, 4, 3, 65.0))
sketch11.addConstraint(Sketcher.Constraint("DistanceX", 1, 3, 0, 3, 92.5))
pocket10 = body.newObject("PartDesign::Pocket", "Pocket009")
pocket10.Profile = sketch11
pocket10.Length = 2
pocket10.Reversed = True
doc.recompute()

fillet = body.newObject("PartDesign::Fillet", "Fillet")
fillet.Base = (pocket10, edges_at(pocket10, [
    (46.25, -61, -8),
    (46.25, -20, -8),
    (-46.25, -20, -8),
    (-46.25, -61, -8),
]))
fillet.Radius = 2

# Sketch on XY plane
sketch12 = body.newObject("Sketcher::SketchObject", "Sketch011")
sketch12.AttachmentSupport = (doc.getObject("XY_Plane"), [""])
sketch12.MapMode = "FlatFace"
sketch12.AttachmentOffset = App.Placement(Vector(0, 0, -10.5), App.Rotation())
sketch12.addGeometry(Part.LineSegment(Vector(36, 12, 0), Vector(-36, 12, 0)), False)
sketch12.addGeometry(Part.LineSegment(Vector(-36, 12, 0), Vector(-36, -60, 0)), False)
sketch12.addGeometry(Part.LineSegment(Vector(-36, -60, 0), Vector(36, -60, 0)), False)
sketch12.addGeometry(Part.LineSegment(Vector(36, -60, 0), Vector(36, 12, 0)), False)
sketch12.addConstraint(Sketcher.Constraint("Coincident", 0, 2, 1, 1))
sketch12.addConstraint(Sketcher.Constraint("Coincident", 1, 2, 2, 1))
sketch12.addConstraint(Sketcher.Constraint("Coincident", 2, 2, 3, 1))
sketch12.addConstraint(Sketcher.Constraint("Coincident", 3, 2, 0, 1))
sketch12.addConstraint(Sketcher.Constraint("Horizontal", 0))
sketch12.addConstraint(Sketcher.Constraint("Vertical", 1))
sketch12.addConstraint(Sketcher.Constraint("Horizontal", 2))
sketch12.addConstraint(Sketcher.Constraint("Vertical", 3))
sketch12.addConstraint(Sketcher.Constraint("Equal", 2, 1))
sketch12.addConstraint(Sketcher.Constraint("DistanceX", 0, 2, 0, 1, 72.0))
sketch12.addConstraint(Sketcher.Constraint("DistanceX", 0, 2, -1, 1, 36.0))
sketch12.addConstraint(Sketcher.Constraint("DistanceY", -1, 1, 0, 2, 12.0))
pocket11 = body.newObject("PartDesign::Pocket", "Pocket010")
pocket11.Profile = sketch12
pocket11.Type = "TwoLengths"
pocket11.Length = 2.5
pocket11.Length2 = 11

# Sketch on XY plane
sketch13 = body.newObject("Sketcher::SketchObject", "Sketch012")
sketch13.AttachmentSupport = (doc.getObject("XY_Plane"), [""])
sketch13.MapMode = "FlatFace"
sketch13.AttachmentOffset = App.Placement(Vector(0, 0, -15), App.Rotation())
sketch13.addGeometry(Part.LineSegment(Vector(40, -64, 0), Vector(-40, -64, 0)), False)
sketch13.addGeometry(Part.LineSegment(Vector(-40, -64, 0), Vector(-40, 16, 0)), False)
sketch13.addGeometry(Part.LineSegment(Vector(-40, 16, 0), Vector(40, 16, 0)), False)
sketch13.addGeometry(Part.LineSegment(Vector(40, 16, 0), Vector(40, -64, 0)), False)
sketch13.addConstraint(Sketcher.Constraint("Coincident", 0, 2, 1, 1))
sketch13.addConstraint(Sketcher.Constraint("Coincident", 1, 2, 2, 1))
sketch13.addConstraint(Sketcher.Constraint("Coincident", 2, 2, 3, 1))
sketch13.addConstraint(Sketcher.Constraint("Coincident", 3, 2, 0, 1))
sketch13.addConstraint(Sketcher.Constraint("Horizontal", 0))
sketch13.addConstraint(Sketcher.Constraint("Vertical", 1))
sketch13.addConstraint(Sketcher.Constraint("Horizontal", 2))
sketch13.addConstraint(Sketcher.Constraint("Vertical", 3))
sketch13.addConstraint(Sketcher.Constraint("Equal", 2, 1))
sketch13.addConstraint(Sketcher.Constraint("DistanceX", 0, 2, 0, 1, 80.0))
sketch13.addConstraint(Sketcher.Constraint("DistanceX", 0, 2, -1, 1, 40.0))
sketch13.addConstraint(Sketcher.Constraint("DistanceY", 0, 2, -1, 1, 64.0))
pocket12 = body.newObject("PartDesign::Pocket", "Pocket011")
pocket12.Profile = sketch13
pocket12.Length = 2.5
pocket12.Reversed = True

doc.recompute()
